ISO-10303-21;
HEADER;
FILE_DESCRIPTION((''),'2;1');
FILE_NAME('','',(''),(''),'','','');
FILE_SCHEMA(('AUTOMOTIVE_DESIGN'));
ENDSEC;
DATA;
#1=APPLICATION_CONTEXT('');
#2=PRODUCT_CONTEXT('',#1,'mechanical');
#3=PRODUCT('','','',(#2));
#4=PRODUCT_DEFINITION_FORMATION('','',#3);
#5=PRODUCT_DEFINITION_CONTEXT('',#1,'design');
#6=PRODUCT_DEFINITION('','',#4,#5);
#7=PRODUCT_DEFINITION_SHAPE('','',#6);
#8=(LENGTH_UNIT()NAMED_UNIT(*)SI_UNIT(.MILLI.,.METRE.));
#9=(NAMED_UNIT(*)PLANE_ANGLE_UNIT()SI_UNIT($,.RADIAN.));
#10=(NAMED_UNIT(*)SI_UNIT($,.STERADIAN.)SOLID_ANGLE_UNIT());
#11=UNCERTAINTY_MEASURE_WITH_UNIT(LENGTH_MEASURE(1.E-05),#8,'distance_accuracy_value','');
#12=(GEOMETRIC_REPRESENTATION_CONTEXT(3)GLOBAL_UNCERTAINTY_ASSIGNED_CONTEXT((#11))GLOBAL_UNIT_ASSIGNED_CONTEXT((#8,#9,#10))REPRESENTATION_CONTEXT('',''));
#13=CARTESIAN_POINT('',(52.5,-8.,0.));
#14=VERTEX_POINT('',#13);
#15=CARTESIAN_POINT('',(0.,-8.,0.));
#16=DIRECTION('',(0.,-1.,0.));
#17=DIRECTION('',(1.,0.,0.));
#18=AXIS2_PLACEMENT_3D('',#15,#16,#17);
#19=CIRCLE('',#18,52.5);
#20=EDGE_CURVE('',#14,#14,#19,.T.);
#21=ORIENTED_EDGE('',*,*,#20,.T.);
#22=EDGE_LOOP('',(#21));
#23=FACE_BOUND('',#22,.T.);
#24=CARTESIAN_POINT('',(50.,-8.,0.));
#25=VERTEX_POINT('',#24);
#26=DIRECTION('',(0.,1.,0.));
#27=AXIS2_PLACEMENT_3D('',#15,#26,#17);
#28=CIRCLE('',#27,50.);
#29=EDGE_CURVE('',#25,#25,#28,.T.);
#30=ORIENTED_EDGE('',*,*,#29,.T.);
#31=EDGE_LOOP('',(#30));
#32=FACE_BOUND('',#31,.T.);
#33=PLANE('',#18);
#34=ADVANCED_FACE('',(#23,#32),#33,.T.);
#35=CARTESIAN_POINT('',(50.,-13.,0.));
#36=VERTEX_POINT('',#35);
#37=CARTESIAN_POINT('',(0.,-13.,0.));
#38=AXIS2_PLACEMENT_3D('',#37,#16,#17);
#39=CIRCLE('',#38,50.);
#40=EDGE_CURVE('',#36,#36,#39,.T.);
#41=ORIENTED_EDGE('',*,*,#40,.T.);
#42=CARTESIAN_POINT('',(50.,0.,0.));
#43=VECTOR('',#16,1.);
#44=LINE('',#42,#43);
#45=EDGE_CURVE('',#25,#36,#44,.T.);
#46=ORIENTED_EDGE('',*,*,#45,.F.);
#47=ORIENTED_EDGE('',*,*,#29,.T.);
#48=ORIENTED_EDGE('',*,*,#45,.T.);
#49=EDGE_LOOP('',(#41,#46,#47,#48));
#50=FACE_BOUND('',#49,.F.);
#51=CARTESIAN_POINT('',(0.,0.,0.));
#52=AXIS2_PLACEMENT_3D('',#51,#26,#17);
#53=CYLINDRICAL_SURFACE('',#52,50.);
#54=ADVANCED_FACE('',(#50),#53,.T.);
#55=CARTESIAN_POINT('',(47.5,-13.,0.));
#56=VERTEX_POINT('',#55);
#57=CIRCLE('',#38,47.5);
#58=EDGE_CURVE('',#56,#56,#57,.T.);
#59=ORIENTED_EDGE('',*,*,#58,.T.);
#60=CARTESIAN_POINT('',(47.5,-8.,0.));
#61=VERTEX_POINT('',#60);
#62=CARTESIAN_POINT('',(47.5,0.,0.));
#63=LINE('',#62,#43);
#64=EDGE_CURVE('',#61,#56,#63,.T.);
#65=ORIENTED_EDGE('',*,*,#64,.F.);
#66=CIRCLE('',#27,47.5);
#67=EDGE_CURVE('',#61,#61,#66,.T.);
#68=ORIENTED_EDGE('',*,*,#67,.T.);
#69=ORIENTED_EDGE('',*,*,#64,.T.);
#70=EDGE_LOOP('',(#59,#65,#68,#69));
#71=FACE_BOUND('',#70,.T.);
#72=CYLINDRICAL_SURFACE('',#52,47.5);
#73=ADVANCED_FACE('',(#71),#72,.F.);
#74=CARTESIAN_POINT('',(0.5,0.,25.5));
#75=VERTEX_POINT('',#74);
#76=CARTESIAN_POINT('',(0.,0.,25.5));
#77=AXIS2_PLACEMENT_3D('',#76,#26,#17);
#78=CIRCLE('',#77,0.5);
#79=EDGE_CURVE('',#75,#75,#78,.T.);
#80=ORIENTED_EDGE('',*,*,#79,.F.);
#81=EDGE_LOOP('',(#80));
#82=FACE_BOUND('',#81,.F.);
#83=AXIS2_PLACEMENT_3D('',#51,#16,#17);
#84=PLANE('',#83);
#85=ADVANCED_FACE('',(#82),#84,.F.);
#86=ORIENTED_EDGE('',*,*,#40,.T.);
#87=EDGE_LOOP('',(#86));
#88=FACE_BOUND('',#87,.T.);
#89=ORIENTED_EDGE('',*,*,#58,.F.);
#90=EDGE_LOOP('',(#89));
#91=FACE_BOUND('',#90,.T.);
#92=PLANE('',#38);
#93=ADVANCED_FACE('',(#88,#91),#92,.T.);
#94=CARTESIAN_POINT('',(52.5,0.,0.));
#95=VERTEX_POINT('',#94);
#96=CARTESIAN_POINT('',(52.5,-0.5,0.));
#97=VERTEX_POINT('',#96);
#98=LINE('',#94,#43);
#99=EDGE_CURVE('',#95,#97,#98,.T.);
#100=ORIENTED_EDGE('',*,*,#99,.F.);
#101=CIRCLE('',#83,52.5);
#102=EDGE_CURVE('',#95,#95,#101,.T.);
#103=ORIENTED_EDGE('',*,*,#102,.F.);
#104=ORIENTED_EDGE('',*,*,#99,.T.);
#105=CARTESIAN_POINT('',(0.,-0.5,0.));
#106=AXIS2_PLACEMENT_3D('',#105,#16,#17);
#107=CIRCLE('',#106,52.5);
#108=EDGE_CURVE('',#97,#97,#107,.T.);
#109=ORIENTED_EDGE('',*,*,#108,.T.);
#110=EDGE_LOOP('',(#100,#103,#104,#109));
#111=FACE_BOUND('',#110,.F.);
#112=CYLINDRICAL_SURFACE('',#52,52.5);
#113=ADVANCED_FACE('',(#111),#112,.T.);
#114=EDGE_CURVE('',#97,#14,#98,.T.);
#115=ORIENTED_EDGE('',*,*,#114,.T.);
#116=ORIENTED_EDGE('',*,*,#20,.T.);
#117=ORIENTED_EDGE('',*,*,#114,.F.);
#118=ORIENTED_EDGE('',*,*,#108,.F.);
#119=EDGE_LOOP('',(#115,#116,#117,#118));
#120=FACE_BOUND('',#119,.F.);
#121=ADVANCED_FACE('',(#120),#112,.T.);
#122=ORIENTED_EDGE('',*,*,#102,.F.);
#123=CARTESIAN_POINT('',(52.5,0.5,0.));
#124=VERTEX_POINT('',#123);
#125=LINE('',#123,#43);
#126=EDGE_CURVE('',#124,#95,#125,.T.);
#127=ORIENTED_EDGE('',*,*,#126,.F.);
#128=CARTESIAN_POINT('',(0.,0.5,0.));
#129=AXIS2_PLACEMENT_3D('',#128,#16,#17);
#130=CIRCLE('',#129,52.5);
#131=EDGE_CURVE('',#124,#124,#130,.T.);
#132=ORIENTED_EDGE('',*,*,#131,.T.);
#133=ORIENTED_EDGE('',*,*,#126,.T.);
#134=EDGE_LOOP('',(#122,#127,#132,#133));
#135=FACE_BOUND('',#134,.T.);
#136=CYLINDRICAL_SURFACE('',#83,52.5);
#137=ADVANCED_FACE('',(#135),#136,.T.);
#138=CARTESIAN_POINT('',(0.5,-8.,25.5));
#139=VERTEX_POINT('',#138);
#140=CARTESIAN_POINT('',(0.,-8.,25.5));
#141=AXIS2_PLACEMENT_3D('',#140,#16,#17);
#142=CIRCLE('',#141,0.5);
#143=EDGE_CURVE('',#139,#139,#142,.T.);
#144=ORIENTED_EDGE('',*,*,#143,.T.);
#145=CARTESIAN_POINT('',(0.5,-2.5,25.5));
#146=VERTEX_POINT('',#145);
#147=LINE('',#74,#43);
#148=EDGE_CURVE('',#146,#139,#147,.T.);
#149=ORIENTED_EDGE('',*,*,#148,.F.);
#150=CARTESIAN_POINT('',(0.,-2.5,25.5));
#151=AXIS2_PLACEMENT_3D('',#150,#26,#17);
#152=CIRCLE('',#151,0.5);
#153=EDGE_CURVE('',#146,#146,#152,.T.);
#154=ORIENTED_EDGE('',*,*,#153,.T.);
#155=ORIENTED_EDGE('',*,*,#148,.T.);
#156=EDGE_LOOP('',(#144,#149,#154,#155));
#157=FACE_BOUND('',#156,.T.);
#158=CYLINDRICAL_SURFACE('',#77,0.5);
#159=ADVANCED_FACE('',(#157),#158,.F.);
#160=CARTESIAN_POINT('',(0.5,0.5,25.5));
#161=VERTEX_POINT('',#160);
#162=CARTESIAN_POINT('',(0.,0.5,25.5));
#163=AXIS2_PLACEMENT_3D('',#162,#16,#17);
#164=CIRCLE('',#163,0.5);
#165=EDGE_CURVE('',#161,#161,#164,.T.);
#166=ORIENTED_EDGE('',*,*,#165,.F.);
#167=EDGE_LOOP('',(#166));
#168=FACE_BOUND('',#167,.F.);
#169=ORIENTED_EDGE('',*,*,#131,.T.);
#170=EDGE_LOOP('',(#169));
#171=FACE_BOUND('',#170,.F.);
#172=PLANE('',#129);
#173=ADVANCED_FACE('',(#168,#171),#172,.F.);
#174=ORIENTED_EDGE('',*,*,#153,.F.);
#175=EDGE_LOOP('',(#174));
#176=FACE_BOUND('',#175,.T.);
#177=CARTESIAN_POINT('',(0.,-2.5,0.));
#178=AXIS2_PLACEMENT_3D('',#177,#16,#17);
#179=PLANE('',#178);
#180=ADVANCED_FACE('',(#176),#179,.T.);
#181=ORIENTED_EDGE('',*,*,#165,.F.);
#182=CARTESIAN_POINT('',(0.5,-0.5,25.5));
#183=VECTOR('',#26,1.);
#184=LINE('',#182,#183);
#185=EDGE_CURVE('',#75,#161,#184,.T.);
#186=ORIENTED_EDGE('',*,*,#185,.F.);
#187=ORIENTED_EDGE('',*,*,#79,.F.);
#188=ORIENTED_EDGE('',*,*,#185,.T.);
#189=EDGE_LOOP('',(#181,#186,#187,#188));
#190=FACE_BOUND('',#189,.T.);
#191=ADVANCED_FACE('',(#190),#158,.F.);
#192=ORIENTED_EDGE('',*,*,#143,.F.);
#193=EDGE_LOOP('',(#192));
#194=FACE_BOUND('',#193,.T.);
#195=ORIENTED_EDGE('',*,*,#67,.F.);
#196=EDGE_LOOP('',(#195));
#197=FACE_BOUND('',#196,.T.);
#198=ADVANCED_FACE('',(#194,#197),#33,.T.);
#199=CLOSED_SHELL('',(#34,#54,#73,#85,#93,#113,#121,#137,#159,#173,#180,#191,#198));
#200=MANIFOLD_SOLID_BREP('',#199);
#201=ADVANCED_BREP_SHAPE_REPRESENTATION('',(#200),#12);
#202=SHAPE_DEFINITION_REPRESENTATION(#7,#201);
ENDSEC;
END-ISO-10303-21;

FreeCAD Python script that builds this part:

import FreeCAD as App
import Part
import Sketcher
from FreeCAD import Vector
Q = App.Units.Quantity


def faces_at(feature, points):
    """Names of the faces that lie closest to the given points."""
    faces = feature.Shape.Faces
    near = lambda p: min(range(len(faces)), key=lambda i: faces[i].distToShape(Part.Vertex(*p))[0])
    return sorted({f"Face{near(p) + 1}" for p in points})

doc = App.newDocument("Part")
body = doc.addObject("PartDesign::Body", "Body")

# Sketch on XZ plane
sketch1 = body.newObject("Sketcher::SketchObject", "Sketch")
sketch1.AttachmentSupport = (doc.getObject("XZ_Plane"), [""])
sketch1.MapMode = "FlatFace"
sketch1.addGeometry(Part.Circle(Vector(0, 0, 0), Vector(0, 0, 1), 50), False)
sketch1.addConstraint(Sketcher.Constraint("Coincident", 0, 3, -1, 1))
sketch1.addConstraint(Sketcher.Constraint("Diameter", 0, Q("100 mm")))
pad1 = body.newObject("PartDesign::Pad", "Pad")
pad1.Profile = sketch1
pad1.Length = 13
doc.recompute()

thickness = body.newObject("PartDesign::Thickness", "Thickness")
thickness.Base = (pad1, faces_at(pad1, [(0, -13, 0)]))
thickness.Value = 2.5
thickness.Reversed = True
thickness.Join = "Arc"

# Sketch on XZ plane
sketch2 = body.newObject("Sketcher::SketchObject", "Sketch001")
sketch2.AttachmentSupport = (doc.getObject("XZ_Plane"), [""])
sketch2.MapMode = "FlatFace"
sketch2.addGeometry(Part.Circle(Vector(0, 0, 0), Vector(0, 0, 1), 52.5), False)
sketch2.addGeometry(Part.Circle(Vector(0, 25.5, 0), Vector(0, 0, 1), 0.5), False)
sketch2.addConstraint(Sketcher.Constraint("Coincident", 0, 3, -1, 1))
sketch2.addConstraint(Sketcher.Constraint("PointOnObject", 1, 3, -2))
sketch2.addConstraint(Sketcher.Constraint("Diameter", 0, Q("105 mm")))
sketch2.addConstraint(Sketcher.Constraint("Diameter", 1, Q("1 mm")))
sketch2.addConstraint(Sketcher.Constraint("DistanceY", -1, 1, 1, 3, Q("25.5 mm")))
pad2 = body.newObject("PartDesign::Pad", "Pad001")
pad2.Profile = sketch2
pad2.Length = 8

# Sketch on XZ plane
sketch3 = body.newObject("Sketcher::SketchObject", "Sketch002")
sketch3.AttachmentSupport = (doc.getObject("XZ_Plane"), [""])
sketch3.MapMode = "FlatFace"
sketch3.addGeometry(Part.Circle(Vector(0, 0, 0), Vector(0, 0, 1), 52.5), False)
sketch3.addGeometry(Part.Circle(Vector(0, 25.5, 0), Vector(0, 0, 1), 0.5), False)
sketch3.addConstraint(Sketcher.Constraint("Coincident", 0, 3, -1, 1))
sketch3.addConstraint(Sketcher.Constraint("PointOnObject", 1, 3, -2))
sketch3.addConstraint(Sketcher.Constraint("Diameter", 0, Q("105 mm")))
sketch3.addConstraint(Sketcher.Constraint("Diameter", 1, Q("1 mm")))
sketch3.addConstraint(Sketcher.Constraint("DistanceY", -1, 1, 1, 3, Q("25.5 mm")))
pad3 = body.newObject("PartDesign::Pad", "Pad002")
pad3.Profile = sketch3
pad3.Length = 1
pad3.Midplane = True

doc.recompute()
